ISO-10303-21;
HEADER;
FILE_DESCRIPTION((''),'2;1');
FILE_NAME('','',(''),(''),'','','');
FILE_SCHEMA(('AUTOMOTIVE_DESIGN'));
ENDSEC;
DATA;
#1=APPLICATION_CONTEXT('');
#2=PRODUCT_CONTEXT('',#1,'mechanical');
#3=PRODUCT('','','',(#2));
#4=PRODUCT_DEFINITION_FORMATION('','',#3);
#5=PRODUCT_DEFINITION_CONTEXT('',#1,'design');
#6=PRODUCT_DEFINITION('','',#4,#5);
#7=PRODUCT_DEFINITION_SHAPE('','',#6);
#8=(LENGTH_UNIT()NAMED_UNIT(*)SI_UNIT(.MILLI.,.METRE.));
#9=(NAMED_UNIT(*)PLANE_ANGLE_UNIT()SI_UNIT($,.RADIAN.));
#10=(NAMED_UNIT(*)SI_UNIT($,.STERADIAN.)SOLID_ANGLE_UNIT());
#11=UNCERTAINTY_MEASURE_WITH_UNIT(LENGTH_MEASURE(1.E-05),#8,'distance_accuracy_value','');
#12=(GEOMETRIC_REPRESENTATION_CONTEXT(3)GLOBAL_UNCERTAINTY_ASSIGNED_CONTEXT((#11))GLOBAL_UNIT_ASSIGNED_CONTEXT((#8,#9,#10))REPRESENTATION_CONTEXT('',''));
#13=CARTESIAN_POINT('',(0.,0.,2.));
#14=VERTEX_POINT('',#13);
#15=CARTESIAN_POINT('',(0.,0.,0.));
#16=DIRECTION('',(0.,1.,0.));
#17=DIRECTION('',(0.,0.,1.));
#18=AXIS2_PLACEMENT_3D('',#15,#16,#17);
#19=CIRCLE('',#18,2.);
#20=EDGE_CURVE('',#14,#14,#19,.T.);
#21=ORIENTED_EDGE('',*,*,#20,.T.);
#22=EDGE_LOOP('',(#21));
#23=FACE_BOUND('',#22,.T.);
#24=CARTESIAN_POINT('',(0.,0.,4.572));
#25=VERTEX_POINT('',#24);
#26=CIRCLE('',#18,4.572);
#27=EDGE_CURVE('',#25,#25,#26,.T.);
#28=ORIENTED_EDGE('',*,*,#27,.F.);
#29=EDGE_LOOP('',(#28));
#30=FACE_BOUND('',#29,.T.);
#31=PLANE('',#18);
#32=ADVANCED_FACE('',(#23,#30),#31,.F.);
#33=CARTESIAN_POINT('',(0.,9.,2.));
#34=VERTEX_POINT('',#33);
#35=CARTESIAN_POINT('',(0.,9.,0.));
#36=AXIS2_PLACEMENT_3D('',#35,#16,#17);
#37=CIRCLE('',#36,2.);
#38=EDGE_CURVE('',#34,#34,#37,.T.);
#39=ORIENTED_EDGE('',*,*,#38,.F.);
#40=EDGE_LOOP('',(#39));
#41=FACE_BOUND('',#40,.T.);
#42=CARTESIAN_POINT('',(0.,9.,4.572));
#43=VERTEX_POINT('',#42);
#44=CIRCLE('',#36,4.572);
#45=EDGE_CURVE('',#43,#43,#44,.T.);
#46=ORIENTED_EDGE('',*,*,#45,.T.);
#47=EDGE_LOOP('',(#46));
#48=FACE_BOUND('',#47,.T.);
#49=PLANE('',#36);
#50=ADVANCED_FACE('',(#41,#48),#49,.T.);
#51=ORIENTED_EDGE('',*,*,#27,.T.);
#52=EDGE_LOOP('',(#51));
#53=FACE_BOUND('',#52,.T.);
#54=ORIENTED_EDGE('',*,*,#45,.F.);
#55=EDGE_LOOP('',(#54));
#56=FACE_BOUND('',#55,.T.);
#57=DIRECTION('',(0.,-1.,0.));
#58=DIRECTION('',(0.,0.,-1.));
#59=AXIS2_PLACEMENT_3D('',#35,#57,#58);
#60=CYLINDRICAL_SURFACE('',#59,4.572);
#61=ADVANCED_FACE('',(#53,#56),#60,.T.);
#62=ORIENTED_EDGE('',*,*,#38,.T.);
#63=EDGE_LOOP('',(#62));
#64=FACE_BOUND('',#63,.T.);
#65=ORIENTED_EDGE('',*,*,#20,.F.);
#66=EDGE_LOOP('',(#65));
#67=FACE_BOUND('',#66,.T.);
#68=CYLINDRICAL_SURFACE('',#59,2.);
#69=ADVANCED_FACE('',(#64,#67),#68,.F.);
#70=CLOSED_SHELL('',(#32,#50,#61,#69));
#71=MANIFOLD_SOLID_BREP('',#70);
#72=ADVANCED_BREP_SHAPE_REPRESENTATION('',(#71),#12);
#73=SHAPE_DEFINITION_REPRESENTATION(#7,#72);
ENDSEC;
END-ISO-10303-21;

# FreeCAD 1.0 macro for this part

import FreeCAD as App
import Part
import Sketcher

V = App.Vector

doc = App.newDocument("Part")
params = doc.addObject("Spreadsheet::Sheet", "Params")
for row, (alias, value) in enumerate([
    ("sketch1_diameter", "4 mm"),
    ("pad1_length", "9 mm"),
], start=1):
    params.set(f"A{row}", alias)
    params.set(f"B{row}", "=" + value)
    params.setAlias(f"B{row}", alias)

body = doc.addObject("PartDesign::Body", "Body")

# Sketch on XZ plane
sketch1 = doc.addObject("Sketcher::SketchObject", "Sketch")
body.addObject(sketch1)
sketch1.AttachmentSupport = (doc.XZ_Plane, [""])
sketch1.MapMode = "FlatFace"
sketch1.addGeometry(Part.Circle(V(0, 0, 0), V(0, 0, 1), 4.572), False)
sketch1.addGeometry(Part.Circle(V(0, 0, 0), V(0, 0, 1), 2), False)
sketch1.addConstraint(Sketcher.Constraint("Coincident", 0, 3, -1, 1))
sketch1.addConstraint(Sketcher.Constraint("Coincident", 1, 3, -1, 1))
sketch1.addConstraint(Sketcher.Constraint("Diameter", 1, 4.0))
sketch1.addConstraint(Sketcher.Constraint("Diameter", 0, 9.144))
sketch1.setExpression("Constraints[2]", "Params.sketch1_diameter")
pad1 = doc.addObject("PartDesign::Pad", "Pad")
body.addObject(pad1)
pad1.Profile = sketch1
pad1.setExpression("Length", "Params.pad1_length")
pad1.Reversed = True

doc.recompute()
